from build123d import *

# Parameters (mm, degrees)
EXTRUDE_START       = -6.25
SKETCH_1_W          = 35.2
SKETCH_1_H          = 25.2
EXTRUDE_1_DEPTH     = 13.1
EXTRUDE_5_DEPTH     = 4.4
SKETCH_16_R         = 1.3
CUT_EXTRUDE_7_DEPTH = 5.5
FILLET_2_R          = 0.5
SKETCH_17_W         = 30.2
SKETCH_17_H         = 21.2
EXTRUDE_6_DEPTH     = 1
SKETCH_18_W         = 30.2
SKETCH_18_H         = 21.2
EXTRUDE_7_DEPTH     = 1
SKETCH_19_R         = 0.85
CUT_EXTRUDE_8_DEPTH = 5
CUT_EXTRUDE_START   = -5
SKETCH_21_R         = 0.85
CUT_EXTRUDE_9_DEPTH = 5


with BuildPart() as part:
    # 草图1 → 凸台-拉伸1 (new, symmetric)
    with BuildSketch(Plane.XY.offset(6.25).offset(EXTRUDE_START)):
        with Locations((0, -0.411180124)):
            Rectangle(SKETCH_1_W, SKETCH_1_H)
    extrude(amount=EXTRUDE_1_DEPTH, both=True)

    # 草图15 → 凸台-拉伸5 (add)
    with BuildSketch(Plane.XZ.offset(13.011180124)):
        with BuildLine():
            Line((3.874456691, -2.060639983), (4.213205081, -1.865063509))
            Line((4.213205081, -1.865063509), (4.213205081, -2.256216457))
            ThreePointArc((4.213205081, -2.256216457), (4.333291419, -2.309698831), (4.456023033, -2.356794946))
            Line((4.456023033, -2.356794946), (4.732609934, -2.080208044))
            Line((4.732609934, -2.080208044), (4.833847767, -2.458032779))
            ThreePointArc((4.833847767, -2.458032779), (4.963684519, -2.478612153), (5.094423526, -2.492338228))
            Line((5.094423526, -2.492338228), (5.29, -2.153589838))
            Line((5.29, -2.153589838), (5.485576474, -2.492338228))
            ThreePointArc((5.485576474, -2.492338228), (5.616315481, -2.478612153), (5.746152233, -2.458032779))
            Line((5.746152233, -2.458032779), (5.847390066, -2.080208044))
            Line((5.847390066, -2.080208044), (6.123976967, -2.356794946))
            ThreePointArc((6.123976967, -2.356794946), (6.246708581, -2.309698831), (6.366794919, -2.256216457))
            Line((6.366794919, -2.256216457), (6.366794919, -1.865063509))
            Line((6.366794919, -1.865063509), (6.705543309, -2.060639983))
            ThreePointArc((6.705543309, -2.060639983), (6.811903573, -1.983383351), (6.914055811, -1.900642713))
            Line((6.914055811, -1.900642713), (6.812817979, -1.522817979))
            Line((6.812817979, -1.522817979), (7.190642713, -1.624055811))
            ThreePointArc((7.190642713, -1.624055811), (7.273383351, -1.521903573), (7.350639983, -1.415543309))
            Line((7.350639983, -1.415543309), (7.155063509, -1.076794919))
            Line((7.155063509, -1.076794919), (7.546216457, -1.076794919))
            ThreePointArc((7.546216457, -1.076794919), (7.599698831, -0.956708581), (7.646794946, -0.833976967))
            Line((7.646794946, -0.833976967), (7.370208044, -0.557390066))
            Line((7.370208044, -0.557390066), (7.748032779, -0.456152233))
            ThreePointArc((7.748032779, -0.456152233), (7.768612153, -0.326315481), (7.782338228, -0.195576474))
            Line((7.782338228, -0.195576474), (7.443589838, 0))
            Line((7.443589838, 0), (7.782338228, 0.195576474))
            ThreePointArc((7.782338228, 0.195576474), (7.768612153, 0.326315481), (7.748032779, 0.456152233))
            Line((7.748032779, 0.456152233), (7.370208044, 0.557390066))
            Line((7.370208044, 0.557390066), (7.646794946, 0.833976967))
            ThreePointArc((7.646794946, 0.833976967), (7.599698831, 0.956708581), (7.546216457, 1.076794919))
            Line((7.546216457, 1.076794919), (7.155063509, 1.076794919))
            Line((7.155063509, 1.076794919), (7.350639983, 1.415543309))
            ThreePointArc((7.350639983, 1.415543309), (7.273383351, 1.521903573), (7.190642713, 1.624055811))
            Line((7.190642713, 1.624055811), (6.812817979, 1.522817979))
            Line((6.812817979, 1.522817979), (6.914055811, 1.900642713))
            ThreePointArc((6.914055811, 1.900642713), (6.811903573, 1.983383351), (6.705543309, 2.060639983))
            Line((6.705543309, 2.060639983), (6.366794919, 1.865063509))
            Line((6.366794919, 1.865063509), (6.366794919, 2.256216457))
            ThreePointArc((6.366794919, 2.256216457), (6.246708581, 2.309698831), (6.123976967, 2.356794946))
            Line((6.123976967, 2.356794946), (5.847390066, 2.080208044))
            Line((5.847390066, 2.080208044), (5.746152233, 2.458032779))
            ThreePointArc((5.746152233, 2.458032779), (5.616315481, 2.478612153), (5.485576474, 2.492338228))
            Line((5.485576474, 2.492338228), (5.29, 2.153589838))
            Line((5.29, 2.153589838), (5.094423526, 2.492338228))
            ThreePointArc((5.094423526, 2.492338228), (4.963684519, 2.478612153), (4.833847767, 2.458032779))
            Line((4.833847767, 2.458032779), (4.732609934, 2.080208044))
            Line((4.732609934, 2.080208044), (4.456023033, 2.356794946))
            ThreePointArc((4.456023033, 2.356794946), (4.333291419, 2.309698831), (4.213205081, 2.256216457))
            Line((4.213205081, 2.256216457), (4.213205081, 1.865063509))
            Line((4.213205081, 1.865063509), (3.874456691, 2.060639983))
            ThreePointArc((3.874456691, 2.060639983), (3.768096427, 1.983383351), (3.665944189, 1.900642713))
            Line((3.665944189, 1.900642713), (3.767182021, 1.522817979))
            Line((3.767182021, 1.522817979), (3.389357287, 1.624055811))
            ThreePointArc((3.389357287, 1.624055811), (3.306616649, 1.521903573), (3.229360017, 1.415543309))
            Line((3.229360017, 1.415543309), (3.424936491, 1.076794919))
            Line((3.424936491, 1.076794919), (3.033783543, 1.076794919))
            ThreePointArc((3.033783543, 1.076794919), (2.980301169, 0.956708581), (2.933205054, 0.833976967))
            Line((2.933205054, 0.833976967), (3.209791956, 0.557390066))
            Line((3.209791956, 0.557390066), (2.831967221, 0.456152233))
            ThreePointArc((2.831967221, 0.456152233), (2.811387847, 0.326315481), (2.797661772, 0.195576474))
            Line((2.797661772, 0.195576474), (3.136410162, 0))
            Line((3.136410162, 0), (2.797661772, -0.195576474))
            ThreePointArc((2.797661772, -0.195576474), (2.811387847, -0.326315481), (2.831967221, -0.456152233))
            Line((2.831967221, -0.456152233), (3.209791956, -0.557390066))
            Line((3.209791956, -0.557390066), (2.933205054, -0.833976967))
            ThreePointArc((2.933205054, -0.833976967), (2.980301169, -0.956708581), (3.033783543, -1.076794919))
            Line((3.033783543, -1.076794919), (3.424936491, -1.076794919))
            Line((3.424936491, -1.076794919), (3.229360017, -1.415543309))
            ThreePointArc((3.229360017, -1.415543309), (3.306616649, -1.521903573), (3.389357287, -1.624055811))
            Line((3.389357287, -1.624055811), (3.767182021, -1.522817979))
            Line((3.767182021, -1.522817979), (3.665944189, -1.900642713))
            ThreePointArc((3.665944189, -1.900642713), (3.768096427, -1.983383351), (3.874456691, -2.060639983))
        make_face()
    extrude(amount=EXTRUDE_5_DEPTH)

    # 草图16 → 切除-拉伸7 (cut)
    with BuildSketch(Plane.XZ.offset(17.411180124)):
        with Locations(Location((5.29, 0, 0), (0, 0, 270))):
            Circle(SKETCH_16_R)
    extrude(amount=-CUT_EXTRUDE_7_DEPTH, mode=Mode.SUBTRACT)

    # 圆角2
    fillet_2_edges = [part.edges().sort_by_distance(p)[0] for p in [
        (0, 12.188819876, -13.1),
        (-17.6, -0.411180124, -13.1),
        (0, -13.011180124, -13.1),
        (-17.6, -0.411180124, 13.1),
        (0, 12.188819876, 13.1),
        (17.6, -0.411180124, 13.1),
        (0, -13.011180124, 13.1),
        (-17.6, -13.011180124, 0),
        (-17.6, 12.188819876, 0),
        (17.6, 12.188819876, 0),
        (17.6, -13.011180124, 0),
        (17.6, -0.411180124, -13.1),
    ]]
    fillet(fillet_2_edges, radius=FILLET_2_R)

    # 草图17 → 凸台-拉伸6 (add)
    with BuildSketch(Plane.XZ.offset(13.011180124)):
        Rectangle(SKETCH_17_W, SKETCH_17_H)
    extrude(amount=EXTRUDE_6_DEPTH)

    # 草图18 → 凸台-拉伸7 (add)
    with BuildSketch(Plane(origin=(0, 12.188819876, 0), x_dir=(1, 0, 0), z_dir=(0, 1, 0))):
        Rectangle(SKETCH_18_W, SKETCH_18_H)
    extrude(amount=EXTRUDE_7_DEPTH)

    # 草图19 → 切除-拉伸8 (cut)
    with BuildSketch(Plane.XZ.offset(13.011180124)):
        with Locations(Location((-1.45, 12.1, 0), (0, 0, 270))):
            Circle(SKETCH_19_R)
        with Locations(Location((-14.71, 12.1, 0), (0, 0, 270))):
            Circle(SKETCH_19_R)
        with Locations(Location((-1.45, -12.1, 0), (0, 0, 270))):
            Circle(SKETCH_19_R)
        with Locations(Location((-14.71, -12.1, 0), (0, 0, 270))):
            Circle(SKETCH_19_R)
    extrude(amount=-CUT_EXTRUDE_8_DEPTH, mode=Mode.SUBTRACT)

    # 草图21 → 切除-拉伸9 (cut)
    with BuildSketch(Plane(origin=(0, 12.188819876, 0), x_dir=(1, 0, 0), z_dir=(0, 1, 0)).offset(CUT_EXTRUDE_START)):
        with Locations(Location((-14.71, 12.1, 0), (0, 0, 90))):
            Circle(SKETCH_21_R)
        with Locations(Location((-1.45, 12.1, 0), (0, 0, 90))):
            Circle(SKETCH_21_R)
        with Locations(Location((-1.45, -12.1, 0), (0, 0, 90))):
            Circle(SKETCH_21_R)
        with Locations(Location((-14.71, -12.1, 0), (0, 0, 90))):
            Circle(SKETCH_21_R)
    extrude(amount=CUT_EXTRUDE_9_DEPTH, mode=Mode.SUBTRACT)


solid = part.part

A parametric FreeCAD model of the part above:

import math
import FreeCAD as App
import Part
import Sketcher
Q = App.Units.Quantity


def edges_at(feature, points):
    """Names of the edges that pass closest to the given points."""
    edges = feature.Shape.Edges
    near = lambda p: min(range(len(edges)), key=lambda i: edges[i].distToShape(Part.Vertex(*p))[0])
    return sorted({f"Edge{near(p) + 1}" for p in points})


def add_polygon(sketch, points):
    """Adds a closed chain of lines whose ends are joined by coincident constraints."""
    first, n = sketch.GeometryCount, len(points)
    for a, b in zip(points, points[1:] + points[:1]):
        sketch.addGeometry(Part.LineSegment(App.Vector(*a, 0), App.Vector(*b, 0)), False)
    for i in range(n):
        sketch.addConstraint(Sketcher.Constraint("Coincident", first + i, 2, first + (i + 1) % n, 1))

doc = App.newDocument("Part")
body = doc.addObject("PartDesign::Body", "Body")

# Sketch on XY plane
sketch1 = doc.addObject("Sketcher::SketchObject", "Sketch")
body.addObject(sketch1)
sketch1.AttachmentSupport = (doc.XY_Plane, [""])
sketch1.MapMode = "FlatFace"
add_polygon(sketch1, [(-18, 12), (-18, -13), (18, -13), (18, 12)])  # lines 0-3
sketch1.addConstraint([
    Sketcher.Constraint("Vertical", 0),
    Sketcher.Constraint("Horizontal", 1),
    Sketcher.Constraint("Vertical", 2),
    Sketcher.Constraint("Horizontal", 3),
    Sketcher.Constraint("DistanceX", 1, 1, 1, 2, Q("35.2 mm")),
    Sketcher.Constraint("DistanceY", 0, 2, 0, 1, Q("25.2 mm")),
    Sketcher.Constraint("DistanceX", 0, 2, -1, 1, Q("17.6 mm")),
    Sketcher.Constraint("DistanceY", 0, 2, -1, 1, Q("13.01118 mm")),
])
pad1 = doc.addObject("PartDesign::Pad", "Pad")
body.addObject(pad1)
pad1.Profile = sketch1
pad1.Length = 26.2
pad1.Midplane = True

# Sketch on XZ plane
sketch2 = doc.addObject("Sketcher::SketchObject", "Sketch001")
body.addObject(sketch2)
sketch2.AttachmentSupport = (doc.XZ_Plane, [""])
sketch2.MapMode = "FlatFace"
sketch2.AttachmentOffset = App.Placement(App.Vector(0, 0, 13.01118), App.Rotation())
sketch2.addGeometry([
    Part.LineSegment(App.Vector(3.87, -2.06, 0), App.Vector(4.21, -1.87, 0)),  # 0
    Part.LineSegment(App.Vector(4.21, -1.87, 0), App.Vector(4.21, -2.26, 0)),  # 1
    Part.ArcOfCircle(Part.Circle(App.Vector(5.29, 0, 0), App.Vector(0, 0, 1), 2.5), math.radians(-115.51), math.radians(-109.49)),  # 2
    Part.LineSegment(App.Vector(4.46, -2.36, 0), App.Vector(4.73, -2.08, 0)),  # 3
    Part.LineSegment(App.Vector(4.73, -2.08, 0), App.Vector(4.83, -2.46, 0)),  # 4
    Part.ArcOfCircle(Part.Circle(App.Vector(5.29, 0, 0), App.Vector(0, 0, 1), 2.5), math.radians(-100.51), math.radians(-94.49)),  # 5
    Part.LineSegment(App.Vector(5.09, -2.49, 0), App.Vector(5.29, -2.15, 0)),  # 6
    Part.LineSegment(App.Vector(5.29, -2.15, 0), App.Vector(5.49, -2.49, 0)),  # 7
    Part.ArcOfCircle(Part.Circle(App.Vector(5.29, 0, 0), App.Vector(0, 0, 1), 2.5), math.radians(-85.51), math.radians(-79.49)),  # 8
    Part.LineSegment(App.Vector(5.75, -2.46, 0), App.Vector(5.85, -2.08, 0)),  # 9
    Part.LineSegment(App.Vector(5.85, -2.08, 0), App.Vector(6.12, -2.36, 0)),  # 10
    Part.ArcOfCircle(Part.Circle(App.Vector(5.29, 0, 0), App.Vector(0, 0, 1), 2.5), math.radians(-70.51), math.radians(-64.49)),  # 11
    Part.LineSegment(App.Vector(6.37, -2.26, 0), App.Vector(6.37, -1.87, 0)),  # 12
    Part.LineSegment(App.Vector(6.37, -1.87, 0), App.Vector(6.71, -2.06, 0)),  # 13
    Part.ArcOfCircle(Part.Circle(App.Vector(5.29, 0, 0), App.Vector(0, 0, 1), 2.5), math.radians(-55.51), math.radians(-49.49)),  # 14
    Part.LineSegment(App.Vector(6.91, -1.9, 0), App.Vector(6.81, -1.52, 0)),  # 15
    Part.LineSegment(App.Vector(6.81, -1.52, 0), App.Vector(7.19, -1.62, 0)),  # 16
    Part.ArcOfCircle(Part.Circle(App.Vector(5.29, 0, 0), App.Vector(0, 0, 1), 2.5), math.radians(-40.51), math.radians(-34.49)),  # 17
    Part.LineSegment(App.Vector(7.35, -1.42, 0), App.Vector(7.16, -1.08, 0)),  # 18
    Part.LineSegment(App.Vector(7.16, -1.08, 0), App.Vector(7.55, -1.08, 0)),  # 19
    Part.ArcOfCircle(Part.Circle(App.Vector(5.29, 0, 0), App.Vector(0, 0, 1), 2.5), math.radians(-25.51), math.radians(-19.49)),  # 20
    Part.LineSegment(App.Vector(7.65, -0.83, 0), App.Vector(7.37, -0.56, 0)),  # 21
    Part.LineSegment(App.Vector(7.37, -0.56, 0), App.Vector(7.75, -0.46, 0)),  # 22
    Part.ArcOfCircle(Part.Circle(App.Vector(5.29, 0, 0), App.Vector(0, 0, 1), 2.5), math.radians(-10.51), math.radians(-4.49)),  # 23
    Part.LineSegment(App.Vector(7.78, -0.2, 0), App.Vector(7.44, 0, 0)),  # 24
    Part.LineSegment(App.Vector(7.44, 0, 0), App.Vector(7.78, 0.2, 0)),  # 25
    Part.ArcOfCircle(Part.Circle(App.Vector(5.29, 0, 0), App.Vector(0, 0, 1), 2.5), math.radians(4.49), math.radians(10.51)),  # 26
    Part.LineSegment(App.Vector(7.75, 0.46, 0), App.Vector(7.37, 0.56, 0)),  # 27
    Part.LineSegment(App.Vector(7.37, 0.56, 0), App.Vector(7.65, 0.83, 0)),  # 28
    Part.ArcOfCircle(Part.Circle(App.Vector(5.29, 0, 0), App.Vector(0, 0, 1), 2.5), math.radians(19.49), math.radians(25.51)),  # 29
    Part.LineSegment(App.Vector(7.55, 1.08, 0), App.Vector(7.16, 1.08, 0)),  # 30
    Part.LineSegment(App.Vector(7.16, 1.08, 0), App.Vector(7.35, 1.42, 0)),  # 31
    Part.ArcOfCircle(Part.Circle(App.Vector(5.29, 0, 0), App.Vector(0, 0, 1), 2.5), math.radians(34.49), math.radians(40.51)),  # 32
    Part.LineSegment(App.Vector(7.19, 1.62, 0), App.Vector(6.81, 1.52, 0)),  # 33
    Part.LineSegment(App.Vector(6.81, 1.52, 0), App.Vector(6.91, 1.9, 0)),  # 34
    Part.ArcOfCircle(Part.Circle(App.Vector(5.29, 0, 0), App.Vector(0, 0, 1), 2.5), math.radians(49.49), math.radians(55.51)),  # 35
    Part.LineSegment(App.Vector(6.71, 2.06, 0), App.Vector(6.37, 1.87, 0)),  # 36
    Part.LineSegment(App.Vector(6.37, 1.87, 0), App.Vector(6.37, 2.26, 0)),  # 37
    Part.ArcOfCircle(Part.Circle(App.Vector(5.29, 0, 0), App.Vector(0, 0, 1), 2.5), math.radians(64.49), math.radians(70.51)),  # 38
    Part.LineSegment(App.Vector(6.12, 2.36, 0), App.Vector(5.85, 2.08, 0)),  # 39
    Part.LineSegment(App.Vector(5.85, 2.08, 0), App.Vector(5.75, 2.46, 0)),  # 40
    Part.ArcOfCircle(Part.Circle(App.Vector(5.29, 0, 0), App.Vector(0, 0, 1), 2.5), math.radians(79.49), math.radians(85.51)),  # 41
    Part.LineSegment(App.Vector(5.49, 2.49, 0), App.Vector(5.29, 2.15, 0)),  # 42
    Part.LineSegment(App.Vector(5.29, 2.15, 0), App.Vector(5.09, 2.49, 0)),  # 43
    Part.ArcOfCircle(Part.Circle(App.Vector(5.29, 0, 0), App.Vector(0, 0, 1), 2.5), math.radians(94.49), math.radians(100.51)),  # 44
    Part.LineSegment(App.Vector(4.83, 2.46, 0), App.Vector(4.73, 2.08, 0)),  # 45
    Part.LineSegment(App.Vector(4.73, 2.08, 0), App.Vector(4.46, 2.36, 0)),  # 46
    Part.ArcOfCircle(Part.Circle(App.Vector(5.29, 0, 0), App.Vector(0, 0, 1), 2.5), math.radians(109.49), math.radians(115.51)),  # 47
    Part.LineSegment(App.Vector(4.21, 2.26, 0), App.Vector(4.21, 1.87, 0)),  # 48
    Part.LineSegment(App.Vector(4.21, 1.87, 0), App.Vector(3.87, 2.06, 0)),  # 49
    Part.ArcOfCircle(Part.Circle(App.Vector(5.29, 0, 0), App.Vector(0, 0, 1), 2.5), math.radians(124.49), math.radians(130.51)),  # 50
    Part.LineSegment(App.Vector(3.67, 1.9, 0), App.Vector(3.77, 1.52, 0)),  # 51
    Part.LineSegment(App.Vector(3.77, 1.52, 0), App.Vector(3.39, 1.62, 0)),  # 52
    Part.ArcOfCircle(Part.Circle(App.Vector(5.29, 0, 0), App.Vector(0, 0, 1), 2.5), math.radians(139.49), math.radians(145.51)),  # 53
    Part.LineSegment(App.Vector(3.23, 1.42, 0), App.Vector(3.42, 1.08, 0)),  # 54
    Part.LineSegment(App.Vector(3.42, 1.08, 0), App.Vector(3.03, 1.08, 0)),  # 55
    Part.ArcOfCircle(Part.Circle(App.Vector(5.29, 0, 0), App.Vector(0, 0, 1), 2.5), math.radians(154.49), math.radians(160.51)),  # 56
    Part.LineSegment(App.Vector(2.93, 0.83, 0), App.Vector(3.21, 0.56, 0)),  # 57
    Part.LineSegment(App.Vector(3.21, 0.56, 0), App.Vector(2.83, 0.46, 0)),  # 58
    Part.ArcOfCircle(Part.Circle(App.Vector(5.29, 0, 0), App.Vector(0, 0, 1), 2.5), math.radians(169.49), math.radians(175.51)),  # 59
    Part.LineSegment(App.Vector(2.8, 0.2, 0), App.Vector(3.14, 0, 0)),  # 60
    Part.LineSegment(App.Vector(3.14, 0, 0), App.Vector(2.8, -0.2, 0)),  # 61
    Part.ArcOfCircle(Part.Circle(App.Vector(5.29, 0, 0), App.Vector(0, 0, 1), 2.5), math.radians(-175.51), math.radians(-169.49)),  # 62
    Part.LineSegment(App.Vector(2.83, -0.46, 0), App.Vector(3.21, -0.56, 0)),  # 63
    Part.LineSegment(App.Vector(3.21, -0.56, 0), App.Vector(2.93, -0.83, 0)),  # 64
    Part.ArcOfCircle(Part.Circle(App.Vector(5.29, 0, 0), App.Vector(0, 0, 1), 2.5), math.radians(-160.51), math.radians(-154.49)),  # 65
    Part.LineSegment(App.Vector(3.03, -1.08, 0), App.Vector(3.42, -1.08, 0)),  # 66
    Part.LineSegment(App.Vector(3.42, -1.08, 0), App.Vector(3.23, -1.42, 0)),  # 67
    Part.ArcOfCircle(Part.Circle(App.Vector(5.29, 0, 0), App.Vector(0, 0, 1), 2.5), math.radians(-145.51), math.radians(-139.49)),  # 68
    Part.LineSegment(App.Vector(3.39, -1.62, 0), App.Vector(3.77, -1.52, 0)),  # 69
    Part.LineSegment(App.Vector(3.77, -1.52, 0), App.Vector(3.67, -1.9, 0)),  # 70
    Part.ArcOfCircle(Part.Circle(App.Vector(5.29, 0, 0), App.Vector(0, 0, 1), 2.5), math.radians(-130.51), math.radians(-124.49)),  # 71
], False)
sketch2.addConstraint([
    Sketcher.Constraint("Coincident", 0, 2, 1, 1),
    Sketcher.Constraint("Coincident", 1, 2, 2, 1),
    Sketcher.Constraint("Coincident", 2, 2, 3, 1),
    Sketcher.Constraint("Coincident", 3, 2, 4, 1),
    Sketcher.Constraint("Coincident", 4, 2, 5, 1),
    Sketcher.Constraint("Coincident", 5, 2, 6, 1),
    Sketcher.Constraint("Coincident", 6, 2, 7, 1),
    Sketcher.Constraint("Coincident", 7, 2, 8, 1),
    Sketcher.Constraint("Coincident", 8, 2, 9, 1),
    Sketcher.Constraint("Coincident", 9, 2, 10, 1),
    Sketcher.Constraint("Coincident", 10, 2, 11, 1),
    Sketcher.Constraint("Coincident", 11, 2, 12, 1),
    Sketcher.Constraint("Coincident", 12, 2, 13, 1),
    Sketcher.Constraint("Coincident", 13, 2, 14, 1),
    Sketcher.Constraint("Coincident", 14, 2, 15, 1),
    Sketcher.Constraint("Coincident", 15, 2, 16, 1),
    Sketcher.Constraint("Coincident", 16, 2, 17, 1),
    Sketcher.Constraint("Coincident", 17, 2, 18, 1),
    Sketcher.Constraint("Coincident", 18, 2, 19, 1),
    Sketcher.Constraint("Coincident", 19, 2, 20, 1),
    Sketcher.Constraint("Coincident", 20, 2, 21, 1),
    Sketcher.Constraint("Coincident", 21, 2, 22, 1),
    Sketcher.Constraint("Coincident", 22, 2, 23, 1),
    Sketcher.Constraint("Coincident", 23, 2, 24, 1),
    Sketcher.Constraint("Coincident", 24, 2, 25, 1),
    Sketcher.Constraint("Coincident", 25, 2, 26, 1),
    Sketcher.Constraint("Coincident", 26, 2, 27, 1),
    Sketcher.Constraint("Coincident", 27, 2, 28, 1),
    Sketcher.Constraint("Coincident", 28, 2, 29, 1),
    Sketcher.Constraint("Coincident", 29, 2, 30, 1),
    Sketcher.Constraint("Coincident", 30, 2, 31, 1),
    Sketcher.Constraint("Coincident", 31, 2, 32, 1),
    Sketcher.Constraint("Coincident", 32, 2, 33, 1),
    Sketcher.Constraint("Coincident", 33, 2, 34, 1),
    Sketcher.Constraint("Coincident", 34, 2, 35, 1),
    Sketcher.Constraint("Coincident", 35, 2, 36, 1),
    Sketcher.Constraint("Coincident", 36, 2, 37, 1),
    Sketcher.Constraint("Coincident", 37, 2, 38, 1),
    Sketcher.Constraint("Coincident", 38, 2, 39, 1),
    Sketcher.Constraint("Coincident", 39, 2, 40, 1),
    Sketcher.Constraint("Coincident", 40, 2, 41, 1),
    Sketcher.Constraint("Coincident", 41, 2, 42, 1),
    Sketcher.Constraint("Coincident", 42, 2, 43, 1),
    Sketcher.Constraint("Coincident", 43, 2, 44, 1),
    Sketcher.Constraint("Coincident", 44, 2, 45, 1),
    Sketcher.Constraint("Coincident", 45, 2, 46, 1),
    Sketcher.Constraint("Coincident", 46, 2, 47, 1),
    Sketcher.Constraint("Coincident", 47, 2, 48, 1),
    Sketcher.Constraint("Coincident", 48, 2, 49, 1),
    Sketcher.Constraint("Coincident", 49, 2, 50, 1),
    Sketcher.Constraint("Coincident", 50, 2, 51, 1),
    Sketcher.Constraint("Coincident", 51, 2, 52, 1),
    Sketcher.Constraint("Coincident", 52, 2, 53, 1),
    Sketcher.Constraint("Coincident", 53, 2, 54, 1),
    Sketcher.Constraint("Coincident", 54, 2, 55, 1),
    Sketcher.Constraint("Coincident", 55, 2, 56, 1),
    Sketcher.Constraint("Coincident", 56, 2, 57, 1),
    Sketcher.Constraint("Coincident", 57, 2, 58, 1),
    Sketcher.Constraint("Coincident", 58, 2, 59, 1),
    Sketcher.Constraint("Coincident", 59, 2, 60, 1),
    Sketcher.Constraint("Coincident", 60, 2, 61, 1),
    Sketcher.Constraint("Coincident", 61, 2, 62, 1),
    Sketcher.Constraint("Coincident", 62, 2, 63, 1),
    Sketcher.Constraint("Coincident", 63, 2, 64, 1),
    Sketcher.Constraint("Coincident", 64, 2, 65, 1),
    Sketcher.Constraint("Coincident", 65, 2, 66, 1),
    Sketcher.Constraint("Coincident", 66, 2, 67, 1),
    Sketcher.Constraint("Coincident", 67, 2, 68, 1),
    Sketcher.Constraint("Coincident", 68, 2, 69, 1),
    Sketcher.Constraint("Coincident", 69, 2, 70, 1),
    Sketcher.Constraint("Coincident", 70, 2, 71, 1),
    Sketcher.Constraint("Coincident", 71, 2, 0, 1),
    Sketcher.Constraint("Vertical", 1),
    Sketcher.Constraint("Vertical", 12),
    Sketcher.Constraint("Horizontal", 19),
    Sketcher.Constraint("Horizontal", 30),
    Sketcher.Constraint("Vertical", 37),
    Sketcher.Constraint("Vertical", 48),
    Sketcher.Constraint("Horizontal", 55),
    Sketcher.Constraint("Horizontal", 66),
    Sketcher.Constraint("Coincident", 5, 3, 2, 3),
    Sketcher.Constraint("Coincident", 8, 3, 2, 3),
    Sketcher.Constraint("Coincident", 11, 3, 2, 3),
    Sketcher.Constraint("Coincident", 14, 3, 2, 3),
    Sketcher.Constraint("Coincident", 17, 3, 2, 3),
    Sketcher.Constraint("Coincident", 20, 3, 2, 3),
    Sketcher.Constraint("Coincident", 23, 3, 2, 3),
    Sketcher.Constraint("Coincident", 26, 3, 2, 3),
    Sketcher.Constraint("Coincident", 29, 3, 2, 3),
    Sketcher.Constraint("Coincident", 32, 3, 2, 3),
    Sketcher.Constraint("Coincident", 35, 3, 2, 3),
    Sketcher.Constraint("Coincident", 38, 3, 2, 3),
    Sketcher.Constraint("Coincident", 41, 3, 2, 3),
    Sketcher.Constraint("Coincident", 44, 3, 2, 3),
    Sketcher.Constraint("Coincident", 47, 3, 2, 3),
    Sketcher.Constraint("Coincident", 50, 3, 2, 3),
    Sketcher.Constraint("Coincident", 53, 3, 2, 3),
    Sketcher.Constraint("Coincident", 56, 3, 2, 3),
    Sketcher.Constraint("Coincident", 59, 3, 2, 3),
    Sketcher.Constraint("Coincident", 62, 3, 2, 3),
    Sketcher.Constraint("Coincident", 65, 3, 2, 3),
    Sketcher.Constraint("Coincident", 68, 3, 2, 3),
    Sketcher.Constraint("Coincident", 71, 3, 2, 3),
    Sketcher.Constraint("Equal", 2, 5),
    Sketcher.Constraint("Equal", 5, 8),
    Sketcher.Constraint("Equal", 8, 11),
    Sketcher.Constraint("Equal", 11, 14),
    Sketcher.Constraint("Equal", 14, 17),
    Sketcher.Constraint("Equal", 17, 20),
    Sketcher.Constraint("Equal", 20, 23),
    Sketcher.Constraint("Equal", 23, 26),
    Sketcher.Constraint("Equal", 26, 29),
    Sketcher.Constraint("Equal", 29, 32),
    Sketcher.Constraint("Equal", 32, 35),
    Sketcher.Constraint("Equal", 35, 38),
    Sketcher.Constraint("Equal", 38, 41),
    Sketcher.Constraint("Equal", 41, 44),
    Sketcher.Constraint("Equal", 44, 47),
    Sketcher.Constraint("Equal", 47, 50),
    Sketcher.Constraint("Equal", 50, 53),
    Sketcher.Constraint("Equal", 53, 56),
    Sketcher.Constraint("Equal", 56, 59),
    Sketcher.Constraint("Equal", 59, 62),
    Sketcher.Constraint("Equal", 62, 65),
    Sketcher.Constraint("Equal", 65, 68),
    Sketcher.Constraint("Equal", 68, 71),
    Sketcher.Constraint("Symmetric", 23, 2, 25, 2, -1),
    Sketcher.Constraint("Symmetric", 21, 2, 27, 2, -1),
    Sketcher.Constraint("Symmetric", 18, 2, 30, 2, -1),
    Sketcher.Constraint("Symmetric", 15, 2, 33, 2, -1),
    Sketcher.Constraint("Symmetric", 12, 2, 36, 2, -1),
    Sketcher.Constraint("Symmetric", 9, 2, 39, 2, -1),
    Sketcher.Constraint("Symmetric", 6, 2, 42, 2, -1),
    Sketcher.Constraint("Symmetric", 3, 2, 45, 2, -1),
    Sketcher.Constraint("Symmetric", 0, 2, 48, 2, -1),
    Sketcher.Constraint("Symmetric", 57, 2, 63, 2, -1),
    Sketcher.Constraint("Symmetric", 54, 2, 66, 2, -1),
    Sketcher.Constraint("Symmetric", 51, 2, 69, 2, -1),
    Sketcher.Constraint("PointOnObject", 24, 2, -1),
    Sketcher.Constraint("PointOnObject", 60, 2, -1),
    Sketcher.Constraint("Perpendicular", 0, 7),
    Sketcher.Constraint("Perpendicular", 3, 10),
    Sketcher.Constraint("Perpendicular", 6, 13),
    Sketcher.Constraint("Parallel", 4, 15),
    Sketcher.Constraint("Perpendicular", 9, 16),
    Sketcher.Constraint("Parallel", 7, 18),
    Sketcher.Constraint("Parallel", 10, 21),
    Sketcher.Constraint("Perpendicular", 15, 22),
    Sketcher.Constraint("Parallel", 13, 24),
    Sketcher.Constraint("Perpendicular", 18, 25),
    Sketcher.Constraint("Parallel", 16, 27),
    Sketcher.Constraint("Perpendicular", 21, 28),
    Sketcher.Constraint("Perpendicular", 24, 31),
    Sketcher.Constraint("Parallel", 22, 33),
    Sketcher.Constraint("Perpendicular", 27, 34),
    Sketcher.Constraint("Parallel", 25, 36),
    Sketcher.Constraint("Parallel", 28, 39),
    Sketcher.Constraint("Perpendicular", 33, 40),
    Sketcher.Constraint("Parallel", 31, 42),
    Sketcher.Constraint("Perpendicular", 36, 43),
    Sketcher.Constraint("Parallel", 34, 45),
    Sketcher.Constraint("Perpendicular", 39, 46),
    Sketcher.Constraint("Perpendicular", 42, 49),
    Sketcher.Constraint("Parallel", 40, 51),
    Sketcher.Constraint("Perpendicular", 45, 52),
    Sketcher.Constraint("Parallel", 43, 54),
    Sketcher.Constraint("Parallel", 46, 57),
    Sketcher.Constraint("Perpendicular", 51, 58),
    Sketcher.Constraint("Parallel", 49, 60),
    Sketcher.Constraint("Perpendicular", 54, 61),
    Sketcher.Constraint("Parallel", 52, 63),
    Sketcher.Constraint("Perpendicular", 57, 64),
    Sketcher.Constraint("Perpendicular", 60, 67),
    Sketcher.Constraint("Parallel", 58, 69),
    Sketcher.Constraint("Perpendicular", 63, 70),
    Sketcher.Constraint("Horizontal", 5, 2, 7, 2),
    Sketcher.Constraint("Horizontal", 4, 2, 8, 2),
    Sketcher.Constraint("Horizontal", 3, 2, 9, 2),
    Sketcher.Constraint("Horizontal", 2, 2, 10, 2),
    Sketcher.Constraint("Horizontal", 1, 2, 11, 2),
    Sketcher.Constraint("Horizontal", 0, 2, 12, 2),
    Sketcher.Constraint("Horizontal", 40, 2, 44, 2),
    Sketcher.Constraint("Horizontal", 34, 2, 50, 2),
    Sketcher.Constraint("Horizontal", 33, 2, 51, 2),
    Sketcher.Constraint("Horizontal", 31, 2, 53, 2),
    Sketcher.Constraint("Horizontal", 30, 2, 54, 2),
    Sketcher.Constraint("Horizontal", 28, 2, 56, 2),
    Sketcher.Constraint("Horizontal", 27, 2, 57, 2),
    Sketcher.Constraint("Horizontal", 25, 2, 59, 2),
    Sketcher.Constraint("Equal", 66, 1),
    Sketcher.Constraint("Equal", 0, 3),
    Sketcher.Constraint("Equal", 3, 4),
    Sketcher.Constraint("Equal", 4, 6),
    Sketcher.Constraint("Equal", 13, 15),
    Sketcher.Constraint("Equal", 15, 16),
    Sketcher.Constraint("Equal", 16, 18),
    Sketcher.Constraint("Equal", 18, 21),
    Sketcher.Constraint("Equal", 21, 22),
    Sketcher.Constraint("Equal", 22, 24),
    Sketcher.Constraint("Radius", 2, Q("2.5 mm")),
    Sketcher.Constraint("Angle", 0, Q("30 deg")),
    Sketcher.Constraint("Angle", 4, Q("-75 deg")),
    Sketcher.Constraint("DistanceX", -1, 1, 2, 3, Q("5.29 mm")),
    Sketcher.Constraint("DistanceX", 19, 1, 19, 2, Q("0.391153 mm")),
    Sketcher.Constraint("DistanceX", -1, 1, 3, 2, Q("4.73261 mm")),
])
pad2 = doc.addObject("PartDesign::Pad", "Pad001")
body.addObject(pad2)
pad2.Profile = sketch2
pad2.Length = 4.4

# Sketch on XZ plane
sketch3 = doc.addObject("Sketcher::SketchObject", "Sketch002")
body.addObject(sketch3)
sketch3.AttachmentSupport = (doc.XZ_Plane, [""])
sketch3.MapMode = "FlatFace"
sketch3.AttachmentOffset = App.Placement(App.Vector(0, 0, 17.41118), App.Rotation())
sketch3.addGeometry(Part.Circle(App.Vector(5.3, 0, 0), App.Vector(0, 0, 1), 1.3), False)
sketch3.addConstraint([
    Sketcher.Constraint("PointOnObject", 0, 3, -1),
    Sketcher.Constraint("Diameter", 0, Q("2.6 mm")),
    Sketcher.Constraint("DistanceX", -1, 1, 0, 3, Q("5.29 mm")),
])
pocket1 = doc.addObject("PartDesign::Pocket", "Pocket")
body.addObject(pocket1)
pocket1.Profile = sketch3
pocket1.Length = 5.5
doc.recompute()

fillet = doc.addObject("PartDesign::Fillet", "Fillet")
body.addObject(fillet)
fillet.Base = (pocket1, edges_at(pocket1, [
    (0, 12.189, -13.1),
    (-17.6, -0.411, -13.1),
    (0, -13.011, -13.1),
    (-17.6, -0.411, 13.1),
    (0, 12.189, 13.1),
    (17.6, -0.411, 13.1),
    (0, -13.011, 13.1),
    (-17.6, -13.011, 0),
    (-17.6, 12.189, 0),
    (17.6, 12.189, 0),
    (17.6, -13.011, 0),
    (17.6, -0.411, -13.1),
]))
fillet.Radius = 0.5

# Sketch on XZ plane
sketch4 = doc.addObject("Sketcher::SketchObject", "Sketch003")
body.addObject(sketch4)
sketch4.AttachmentSupport = (doc.XZ_Plane, [""])
sketch4.MapMode = "FlatFace"
sketch4.AttachmentOffset = App.Placement(App.Vector(0, 0, 13.01118), App.Rotation())
add_polygon(sketch4, [(-15, 11), (-15, -11), (15, -11), (15, 11)])  # lines 0-3
sketch4.addConstraint([
    Sketcher.Constraint("Vertical", 0),
    Sketcher.Constraint("Horizontal", 1),
    Sketcher.Constraint("Vertical", 2),
    Sketcher.Constraint("Horizontal", 3),
    Sketcher.Constraint("Symmetric", 0, 2, 2, 2, -1, 1),
    Sketcher.Constraint("DistanceX", 1, 1, 1, 2, Q("30.2 mm")),
    Sketcher.Constraint("DistanceY", 0, 2, 0, 1, Q("21.2 mm")),
])
pad3 = doc.addObject("PartDesign::Pad", "Pad002")
body.addObject(pad3)
pad3.Profile = sketch4
pad3.Length = 1

# Sketch on XZ plane
sketch5 = doc.addObject("Sketcher::SketchObject", "Sketch004")
body.addObject(sketch5)
sketch5.AttachmentSupport = (doc.XZ_Plane, [""])
sketch5.MapMode = "FlatFace"
sketch5.AttachmentOffset = App.Placement(App.Vector(0, 0, -12.18882), App.Rotation())
add_polygon(sketch5, [(-15, -11), (-15, 11), (15, 11), (15, -11)])  # lines 0-3
sketch5.addConstraint([
    Sketcher.Constraint("Vertical", 0),
    Sketcher.Constraint("Horizontal", 1),
    Sketcher.Constraint("Vertical", 2),
    Sketcher.Constraint("Horizontal", 3),
    Sketcher.Constraint("Symmetric", 0, 2, 2, 2, -1, 1),
    Sketcher.Constraint("DistanceX", 1, 1, 1, 2, Q("30.2 mm")),
    Sketcher.Constraint("DistanceY", 0, 1, 0, 2, Q("21.2 mm")),
])
pad4 = doc.addObject("PartDesign::Pad", "Pad003")
body.addObject(pad4)
pad4.Profile = sketch5
pad4.Length = 1
pad4.Reversed = True

# Sketch on XZ plane
sketch6 = doc.addObject("Sketcher::SketchObject", "Sketch005")
body.addObject(sketch6)
sketch6.AttachmentSupport = (doc.XZ_Plane, [""])
sketch6.MapMode = "FlatFace"
sketch6.AttachmentOffset = App.Placement(App.Vector(0, 0, 13.01118), App.Rotation())
sketch6.addGeometry([
    Part.Circle(App.Vector(-1.4, 12.1, 0), App.Vector(0, 0, 1), 0.8),
    Part.Circle(App.Vector(-14.7, 12.1, 0), App.Vector(0, 0, 1), 0.8),
    Part.Circle(App.Vector(-1.4, -12.1, 0), App.Vector(0, 0, 1), 0.8),
    Part.Circle(App.Vector(-14.7, -12.1, 0), App.Vector(0, 0, 1), 0.8),
], False)
sketch6.addConstraint([
    Sketcher.Constraint("Equal", 0, 1),
    Sketcher.Constraint("Equal", 1, 2),
    Sketcher.Constraint("Equal", 2, 3),
    Sketcher.Constraint("Symmetric", 0, 3, 2, 3, -1),
    Sketcher.Constraint("Symmetric", 1, 3, 3, 3, -1),
    Sketcher.Constraint("Horizontal", 0, 3, 1, 3),
    Sketcher.Constraint("Diameter", 0, Q("1.7 mm")),
    Sketcher.Constraint("DistanceY", -1, 1, 0, 3, Q("12.1 mm")),
    Sketcher.Constraint("DistanceX", 0, 3, -1, 1, Q("1.45 mm")),
    Sketcher.Constraint("DistanceX", 1, 3, -1, 1, Q("14.71 mm")),
])
pocket2 = doc.addObject("PartDesign::Pocket", "Pocket001")
body.addObject(pocket2)
pocket2.Profile = sketch6
pocket2.Length = 5

# Sketch on XZ plane
sketch7 = doc.addObject("Sketcher::SketchObject", "Sketch006")
body.addObject(sketch7)
sketch7.AttachmentSupport = (doc.XZ_Plane, [""])
sketch7.MapMode = "FlatFace"
sketch7.AttachmentOffset = App.Placement(App.Vector(0, 0, -7.18882), App.Rotation())
sketch7.addGeometry([
    Part.Circle(App.Vector(-14.7, -12.1, 0), App.Vector(0, 0, 1), 0.8),
    Part.Circle(App.Vector(-1.4, -12.1, 0), App.Vector(0, 0, 1), 0.8),
    Part.Circle(App.Vector(-1.4, 12.1, 0), App.Vector(0, 0, 1), 0.8),
    Part.Circle(App.Vector(-14.7, 12.1, 0), App.Vector(0, 0, 1), 0.8),
], False)
sketch7.addConstraint([
    Sketcher.Constraint("Equal", 0, 1),
    Sketcher.Constraint("Equal", 1, 2),
    Sketcher.Constraint("Equal", 2, 3),
    Sketcher.Constraint("Symmetric", 1, 3, 2, 3, -1),
    Sketcher.Constraint("Symmetric", 0, 3, 3, 3, -1),
    Sketcher.Constraint("Horizontal", 0, 3, 1, 3),
    Sketcher.Constraint("Diameter", 0, Q("1.7 mm")),
    Sketcher.Constraint("DistanceY", 0, 3, -1, 1, Q("12.1 mm")),
    Sketcher.Constraint("DistanceX", 0, 3, -1, 1, Q("14.71 mm")),
    Sketcher.Constraint("DistanceX", 1, 3, -1, 1, Q("1.45 mm")),
])
pocket3 = doc.addObject("PartDesign::Pocket", "Pocket002")
body.addObject(pocket3)
pocket3.Profile = sketch7
pocket3.Length = 5

doc.recompute()
